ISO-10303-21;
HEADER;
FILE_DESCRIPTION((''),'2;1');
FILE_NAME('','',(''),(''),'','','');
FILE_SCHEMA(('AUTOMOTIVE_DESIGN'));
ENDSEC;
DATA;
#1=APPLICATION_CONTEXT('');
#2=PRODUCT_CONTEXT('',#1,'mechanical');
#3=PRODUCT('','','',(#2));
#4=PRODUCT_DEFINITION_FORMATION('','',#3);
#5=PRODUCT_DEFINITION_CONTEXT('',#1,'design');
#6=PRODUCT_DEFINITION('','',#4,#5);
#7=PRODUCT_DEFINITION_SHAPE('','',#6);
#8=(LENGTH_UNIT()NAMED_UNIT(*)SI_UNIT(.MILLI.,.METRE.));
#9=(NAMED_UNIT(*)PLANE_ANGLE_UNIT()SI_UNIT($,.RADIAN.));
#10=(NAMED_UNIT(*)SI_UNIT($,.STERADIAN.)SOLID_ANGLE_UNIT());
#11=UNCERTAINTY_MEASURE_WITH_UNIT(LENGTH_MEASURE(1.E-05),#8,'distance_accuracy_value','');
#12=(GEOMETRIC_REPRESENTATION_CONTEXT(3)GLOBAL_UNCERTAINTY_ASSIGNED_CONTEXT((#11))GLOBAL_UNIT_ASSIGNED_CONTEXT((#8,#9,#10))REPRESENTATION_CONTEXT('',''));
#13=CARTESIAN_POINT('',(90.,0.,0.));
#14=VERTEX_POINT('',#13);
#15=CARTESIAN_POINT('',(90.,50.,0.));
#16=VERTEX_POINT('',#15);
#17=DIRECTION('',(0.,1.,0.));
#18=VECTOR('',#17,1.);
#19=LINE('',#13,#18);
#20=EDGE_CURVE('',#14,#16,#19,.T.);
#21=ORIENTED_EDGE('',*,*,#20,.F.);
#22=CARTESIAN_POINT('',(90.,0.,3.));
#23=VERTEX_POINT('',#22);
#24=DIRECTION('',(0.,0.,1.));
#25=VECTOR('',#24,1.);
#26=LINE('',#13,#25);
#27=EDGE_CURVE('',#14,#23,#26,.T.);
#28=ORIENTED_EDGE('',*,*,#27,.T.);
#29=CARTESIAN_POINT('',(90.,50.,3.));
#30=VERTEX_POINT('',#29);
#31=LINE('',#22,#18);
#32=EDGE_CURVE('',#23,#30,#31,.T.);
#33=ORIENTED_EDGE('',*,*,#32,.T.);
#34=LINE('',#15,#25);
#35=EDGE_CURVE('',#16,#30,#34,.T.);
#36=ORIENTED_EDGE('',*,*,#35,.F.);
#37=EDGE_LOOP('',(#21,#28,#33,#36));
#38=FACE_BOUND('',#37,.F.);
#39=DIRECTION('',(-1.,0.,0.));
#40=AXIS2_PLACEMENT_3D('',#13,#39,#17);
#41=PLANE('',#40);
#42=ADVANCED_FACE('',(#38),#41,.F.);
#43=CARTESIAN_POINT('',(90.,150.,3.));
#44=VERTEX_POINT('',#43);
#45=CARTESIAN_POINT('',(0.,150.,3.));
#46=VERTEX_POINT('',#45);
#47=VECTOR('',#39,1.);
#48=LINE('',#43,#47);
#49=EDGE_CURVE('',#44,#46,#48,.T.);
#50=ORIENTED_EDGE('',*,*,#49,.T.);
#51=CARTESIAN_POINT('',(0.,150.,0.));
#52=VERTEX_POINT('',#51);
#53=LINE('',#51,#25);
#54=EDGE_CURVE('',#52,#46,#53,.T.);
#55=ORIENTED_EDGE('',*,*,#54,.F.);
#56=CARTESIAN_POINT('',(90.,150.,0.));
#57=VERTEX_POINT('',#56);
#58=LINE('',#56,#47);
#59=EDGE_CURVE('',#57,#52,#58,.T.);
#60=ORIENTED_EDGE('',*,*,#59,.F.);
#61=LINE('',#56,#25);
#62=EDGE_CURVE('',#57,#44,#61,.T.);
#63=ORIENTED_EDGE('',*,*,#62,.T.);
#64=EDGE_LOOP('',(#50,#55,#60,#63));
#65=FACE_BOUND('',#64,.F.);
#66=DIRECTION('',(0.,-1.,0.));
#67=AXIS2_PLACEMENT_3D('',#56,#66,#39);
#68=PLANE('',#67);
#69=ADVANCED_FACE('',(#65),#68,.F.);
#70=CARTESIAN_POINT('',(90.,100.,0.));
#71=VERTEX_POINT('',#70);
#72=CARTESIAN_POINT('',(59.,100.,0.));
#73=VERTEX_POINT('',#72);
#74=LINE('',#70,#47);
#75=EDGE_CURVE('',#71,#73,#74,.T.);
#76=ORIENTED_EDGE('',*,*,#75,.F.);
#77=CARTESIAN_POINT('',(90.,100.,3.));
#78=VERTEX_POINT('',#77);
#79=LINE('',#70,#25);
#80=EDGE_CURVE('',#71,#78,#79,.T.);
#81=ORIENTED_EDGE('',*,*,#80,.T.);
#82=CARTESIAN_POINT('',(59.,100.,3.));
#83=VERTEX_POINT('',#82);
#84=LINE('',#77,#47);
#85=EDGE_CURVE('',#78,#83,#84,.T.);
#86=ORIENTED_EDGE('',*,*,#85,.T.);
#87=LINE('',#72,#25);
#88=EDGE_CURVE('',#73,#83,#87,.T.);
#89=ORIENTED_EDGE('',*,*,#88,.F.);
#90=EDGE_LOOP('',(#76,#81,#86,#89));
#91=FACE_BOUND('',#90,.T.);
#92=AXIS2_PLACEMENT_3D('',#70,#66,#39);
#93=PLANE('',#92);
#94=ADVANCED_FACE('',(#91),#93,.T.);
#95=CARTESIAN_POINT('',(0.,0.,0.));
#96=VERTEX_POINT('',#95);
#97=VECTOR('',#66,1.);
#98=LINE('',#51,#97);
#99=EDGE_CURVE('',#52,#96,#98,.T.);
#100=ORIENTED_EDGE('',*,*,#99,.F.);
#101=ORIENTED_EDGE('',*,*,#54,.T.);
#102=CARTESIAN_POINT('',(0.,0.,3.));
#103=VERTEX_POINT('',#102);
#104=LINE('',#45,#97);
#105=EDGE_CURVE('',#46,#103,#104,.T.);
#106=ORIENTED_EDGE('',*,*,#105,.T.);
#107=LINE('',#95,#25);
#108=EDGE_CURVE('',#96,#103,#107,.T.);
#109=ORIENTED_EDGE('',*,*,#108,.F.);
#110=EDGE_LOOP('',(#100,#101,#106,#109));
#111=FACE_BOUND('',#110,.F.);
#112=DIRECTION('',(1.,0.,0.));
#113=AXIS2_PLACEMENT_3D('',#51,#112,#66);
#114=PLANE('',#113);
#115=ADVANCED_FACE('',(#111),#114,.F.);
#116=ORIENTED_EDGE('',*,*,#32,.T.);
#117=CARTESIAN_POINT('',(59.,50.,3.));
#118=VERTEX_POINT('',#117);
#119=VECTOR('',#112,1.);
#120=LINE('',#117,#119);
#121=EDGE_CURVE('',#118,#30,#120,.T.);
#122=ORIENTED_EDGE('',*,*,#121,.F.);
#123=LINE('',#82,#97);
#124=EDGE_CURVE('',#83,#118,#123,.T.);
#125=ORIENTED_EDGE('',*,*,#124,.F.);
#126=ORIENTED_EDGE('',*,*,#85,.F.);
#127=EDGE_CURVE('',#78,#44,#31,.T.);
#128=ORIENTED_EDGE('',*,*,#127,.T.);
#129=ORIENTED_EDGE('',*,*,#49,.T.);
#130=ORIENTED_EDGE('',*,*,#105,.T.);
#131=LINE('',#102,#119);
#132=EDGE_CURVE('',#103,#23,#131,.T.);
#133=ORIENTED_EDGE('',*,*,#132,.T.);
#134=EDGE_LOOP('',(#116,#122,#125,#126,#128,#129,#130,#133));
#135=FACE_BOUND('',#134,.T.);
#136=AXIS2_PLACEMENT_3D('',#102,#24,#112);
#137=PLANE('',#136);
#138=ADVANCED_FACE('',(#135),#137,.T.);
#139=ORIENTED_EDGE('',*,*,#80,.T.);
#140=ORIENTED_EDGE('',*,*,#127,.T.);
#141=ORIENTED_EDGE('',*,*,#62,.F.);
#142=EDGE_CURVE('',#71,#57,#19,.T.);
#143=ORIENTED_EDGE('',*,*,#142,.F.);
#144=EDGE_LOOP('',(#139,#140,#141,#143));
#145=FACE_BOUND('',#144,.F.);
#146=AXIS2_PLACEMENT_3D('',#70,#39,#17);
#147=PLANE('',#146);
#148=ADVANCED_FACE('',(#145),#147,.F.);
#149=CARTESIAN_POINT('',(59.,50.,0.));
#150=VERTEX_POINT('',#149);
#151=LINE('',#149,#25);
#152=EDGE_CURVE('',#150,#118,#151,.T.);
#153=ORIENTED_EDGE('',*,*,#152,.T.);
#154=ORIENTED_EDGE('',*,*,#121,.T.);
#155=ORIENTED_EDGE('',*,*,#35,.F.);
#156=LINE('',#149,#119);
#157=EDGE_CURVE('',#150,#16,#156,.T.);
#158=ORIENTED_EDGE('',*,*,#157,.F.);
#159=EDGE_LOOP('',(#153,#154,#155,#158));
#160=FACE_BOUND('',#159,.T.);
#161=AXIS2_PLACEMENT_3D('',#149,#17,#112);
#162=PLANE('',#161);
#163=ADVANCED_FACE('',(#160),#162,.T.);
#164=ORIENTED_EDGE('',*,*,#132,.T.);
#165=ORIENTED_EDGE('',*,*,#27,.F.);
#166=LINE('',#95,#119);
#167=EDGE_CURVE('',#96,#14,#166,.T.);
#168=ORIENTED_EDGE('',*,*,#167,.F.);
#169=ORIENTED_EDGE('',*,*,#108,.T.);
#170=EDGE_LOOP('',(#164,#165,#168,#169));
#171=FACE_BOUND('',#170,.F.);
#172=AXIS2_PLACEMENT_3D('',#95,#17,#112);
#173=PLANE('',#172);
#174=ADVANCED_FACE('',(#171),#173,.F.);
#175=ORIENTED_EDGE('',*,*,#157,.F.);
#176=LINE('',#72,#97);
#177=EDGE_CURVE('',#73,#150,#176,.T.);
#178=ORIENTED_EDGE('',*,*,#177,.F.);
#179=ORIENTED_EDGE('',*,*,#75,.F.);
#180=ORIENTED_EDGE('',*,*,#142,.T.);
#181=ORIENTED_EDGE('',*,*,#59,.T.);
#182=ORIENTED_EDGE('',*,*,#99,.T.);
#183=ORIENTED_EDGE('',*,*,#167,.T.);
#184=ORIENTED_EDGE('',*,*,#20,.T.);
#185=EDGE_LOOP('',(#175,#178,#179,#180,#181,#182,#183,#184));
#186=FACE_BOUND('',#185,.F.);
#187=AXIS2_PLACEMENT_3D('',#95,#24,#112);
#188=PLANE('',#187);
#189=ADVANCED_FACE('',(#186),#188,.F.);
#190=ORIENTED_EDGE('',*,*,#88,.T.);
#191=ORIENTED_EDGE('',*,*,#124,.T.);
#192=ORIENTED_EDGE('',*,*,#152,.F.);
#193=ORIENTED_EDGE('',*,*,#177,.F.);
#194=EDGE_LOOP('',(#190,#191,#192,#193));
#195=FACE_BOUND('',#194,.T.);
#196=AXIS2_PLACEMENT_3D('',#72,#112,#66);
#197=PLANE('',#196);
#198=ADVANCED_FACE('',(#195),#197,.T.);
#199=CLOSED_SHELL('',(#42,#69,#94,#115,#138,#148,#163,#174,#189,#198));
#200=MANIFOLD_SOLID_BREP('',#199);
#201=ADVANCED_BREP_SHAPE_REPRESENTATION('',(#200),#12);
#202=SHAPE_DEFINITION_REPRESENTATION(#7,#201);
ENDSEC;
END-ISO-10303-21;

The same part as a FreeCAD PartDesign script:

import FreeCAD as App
import Part
import Sketcher

V = App.Vector
Q = App.Units.Quantity


def add_polygon(sketch, points):
    """Adds a closed chain of lines whose ends are joined by coincident constraints."""
    first, n = sketch.GeometryCount, len(points)
    for a, b in zip(points, points[1:] + points[:1]):
        sketch.addGeometry(Part.LineSegment(App.Vector(*a, 0), App.Vector(*b, 0)), False)
    for i in range(n):
        sketch.addConstraint(Sketcher.Constraint("Coincident", first + i, 2, first + (i + 1) % n, 1))

doc = App.newDocument("Part")
body = doc.addObject("PartDesign::Body", "Body")

sketch1 = doc.addObject("Sketcher::SketchObject", "Sketch")
body.addObject(sketch1)
sketch1.AttachmentSupport = (doc.XY_Plane, [""])
sketch1.MapMode = "FlatFace"
add_polygon(sketch1, [(0, 150), (0, 0), (90, 0), (90, 50), (59, 50), (59, 100), (90, 100), (90, 150)])
sketch1.addConstraint([
    Sketcher.Constraint("Vertical", 0),
    Sketcher.Constraint("Horizontal", 1),
    Sketcher.Constraint("Vertical", 2),
    Sketcher.Constraint("Horizontal", 3),
    Sketcher.Constraint("Vertical", 4),
    Sketcher.Constraint("Horizontal", 5),
    Sketcher.Constraint("Vertical", 6),
    Sketcher.Constraint("Horizontal", 7),
    Sketcher.Constraint("Coincident", 0, 2, -1, 1),
    Sketcher.Constraint("Vertical", 2, 2, 5, 2),
    Sketcher.Constraint("Equal", 2, 4),
    Sketcher.Constraint("Equal", 4, 6),
    Sketcher.Constraint("DistanceX", 1, 1, 1, 2, Q("90 mm")),
    Sketcher.Constraint("DistanceX", 3, 2, 3, 1, Q("31 mm")),
    Sketcher.Constraint("DistanceY", 0, 2, 0, 1, Q("150 mm")),
])
pad1 = doc.addObject("PartDesign::Pad", "Pad")
body.addObject(pad1)
pad1.Profile = sketch1
pad1.Length = 3

doc.recompute()
